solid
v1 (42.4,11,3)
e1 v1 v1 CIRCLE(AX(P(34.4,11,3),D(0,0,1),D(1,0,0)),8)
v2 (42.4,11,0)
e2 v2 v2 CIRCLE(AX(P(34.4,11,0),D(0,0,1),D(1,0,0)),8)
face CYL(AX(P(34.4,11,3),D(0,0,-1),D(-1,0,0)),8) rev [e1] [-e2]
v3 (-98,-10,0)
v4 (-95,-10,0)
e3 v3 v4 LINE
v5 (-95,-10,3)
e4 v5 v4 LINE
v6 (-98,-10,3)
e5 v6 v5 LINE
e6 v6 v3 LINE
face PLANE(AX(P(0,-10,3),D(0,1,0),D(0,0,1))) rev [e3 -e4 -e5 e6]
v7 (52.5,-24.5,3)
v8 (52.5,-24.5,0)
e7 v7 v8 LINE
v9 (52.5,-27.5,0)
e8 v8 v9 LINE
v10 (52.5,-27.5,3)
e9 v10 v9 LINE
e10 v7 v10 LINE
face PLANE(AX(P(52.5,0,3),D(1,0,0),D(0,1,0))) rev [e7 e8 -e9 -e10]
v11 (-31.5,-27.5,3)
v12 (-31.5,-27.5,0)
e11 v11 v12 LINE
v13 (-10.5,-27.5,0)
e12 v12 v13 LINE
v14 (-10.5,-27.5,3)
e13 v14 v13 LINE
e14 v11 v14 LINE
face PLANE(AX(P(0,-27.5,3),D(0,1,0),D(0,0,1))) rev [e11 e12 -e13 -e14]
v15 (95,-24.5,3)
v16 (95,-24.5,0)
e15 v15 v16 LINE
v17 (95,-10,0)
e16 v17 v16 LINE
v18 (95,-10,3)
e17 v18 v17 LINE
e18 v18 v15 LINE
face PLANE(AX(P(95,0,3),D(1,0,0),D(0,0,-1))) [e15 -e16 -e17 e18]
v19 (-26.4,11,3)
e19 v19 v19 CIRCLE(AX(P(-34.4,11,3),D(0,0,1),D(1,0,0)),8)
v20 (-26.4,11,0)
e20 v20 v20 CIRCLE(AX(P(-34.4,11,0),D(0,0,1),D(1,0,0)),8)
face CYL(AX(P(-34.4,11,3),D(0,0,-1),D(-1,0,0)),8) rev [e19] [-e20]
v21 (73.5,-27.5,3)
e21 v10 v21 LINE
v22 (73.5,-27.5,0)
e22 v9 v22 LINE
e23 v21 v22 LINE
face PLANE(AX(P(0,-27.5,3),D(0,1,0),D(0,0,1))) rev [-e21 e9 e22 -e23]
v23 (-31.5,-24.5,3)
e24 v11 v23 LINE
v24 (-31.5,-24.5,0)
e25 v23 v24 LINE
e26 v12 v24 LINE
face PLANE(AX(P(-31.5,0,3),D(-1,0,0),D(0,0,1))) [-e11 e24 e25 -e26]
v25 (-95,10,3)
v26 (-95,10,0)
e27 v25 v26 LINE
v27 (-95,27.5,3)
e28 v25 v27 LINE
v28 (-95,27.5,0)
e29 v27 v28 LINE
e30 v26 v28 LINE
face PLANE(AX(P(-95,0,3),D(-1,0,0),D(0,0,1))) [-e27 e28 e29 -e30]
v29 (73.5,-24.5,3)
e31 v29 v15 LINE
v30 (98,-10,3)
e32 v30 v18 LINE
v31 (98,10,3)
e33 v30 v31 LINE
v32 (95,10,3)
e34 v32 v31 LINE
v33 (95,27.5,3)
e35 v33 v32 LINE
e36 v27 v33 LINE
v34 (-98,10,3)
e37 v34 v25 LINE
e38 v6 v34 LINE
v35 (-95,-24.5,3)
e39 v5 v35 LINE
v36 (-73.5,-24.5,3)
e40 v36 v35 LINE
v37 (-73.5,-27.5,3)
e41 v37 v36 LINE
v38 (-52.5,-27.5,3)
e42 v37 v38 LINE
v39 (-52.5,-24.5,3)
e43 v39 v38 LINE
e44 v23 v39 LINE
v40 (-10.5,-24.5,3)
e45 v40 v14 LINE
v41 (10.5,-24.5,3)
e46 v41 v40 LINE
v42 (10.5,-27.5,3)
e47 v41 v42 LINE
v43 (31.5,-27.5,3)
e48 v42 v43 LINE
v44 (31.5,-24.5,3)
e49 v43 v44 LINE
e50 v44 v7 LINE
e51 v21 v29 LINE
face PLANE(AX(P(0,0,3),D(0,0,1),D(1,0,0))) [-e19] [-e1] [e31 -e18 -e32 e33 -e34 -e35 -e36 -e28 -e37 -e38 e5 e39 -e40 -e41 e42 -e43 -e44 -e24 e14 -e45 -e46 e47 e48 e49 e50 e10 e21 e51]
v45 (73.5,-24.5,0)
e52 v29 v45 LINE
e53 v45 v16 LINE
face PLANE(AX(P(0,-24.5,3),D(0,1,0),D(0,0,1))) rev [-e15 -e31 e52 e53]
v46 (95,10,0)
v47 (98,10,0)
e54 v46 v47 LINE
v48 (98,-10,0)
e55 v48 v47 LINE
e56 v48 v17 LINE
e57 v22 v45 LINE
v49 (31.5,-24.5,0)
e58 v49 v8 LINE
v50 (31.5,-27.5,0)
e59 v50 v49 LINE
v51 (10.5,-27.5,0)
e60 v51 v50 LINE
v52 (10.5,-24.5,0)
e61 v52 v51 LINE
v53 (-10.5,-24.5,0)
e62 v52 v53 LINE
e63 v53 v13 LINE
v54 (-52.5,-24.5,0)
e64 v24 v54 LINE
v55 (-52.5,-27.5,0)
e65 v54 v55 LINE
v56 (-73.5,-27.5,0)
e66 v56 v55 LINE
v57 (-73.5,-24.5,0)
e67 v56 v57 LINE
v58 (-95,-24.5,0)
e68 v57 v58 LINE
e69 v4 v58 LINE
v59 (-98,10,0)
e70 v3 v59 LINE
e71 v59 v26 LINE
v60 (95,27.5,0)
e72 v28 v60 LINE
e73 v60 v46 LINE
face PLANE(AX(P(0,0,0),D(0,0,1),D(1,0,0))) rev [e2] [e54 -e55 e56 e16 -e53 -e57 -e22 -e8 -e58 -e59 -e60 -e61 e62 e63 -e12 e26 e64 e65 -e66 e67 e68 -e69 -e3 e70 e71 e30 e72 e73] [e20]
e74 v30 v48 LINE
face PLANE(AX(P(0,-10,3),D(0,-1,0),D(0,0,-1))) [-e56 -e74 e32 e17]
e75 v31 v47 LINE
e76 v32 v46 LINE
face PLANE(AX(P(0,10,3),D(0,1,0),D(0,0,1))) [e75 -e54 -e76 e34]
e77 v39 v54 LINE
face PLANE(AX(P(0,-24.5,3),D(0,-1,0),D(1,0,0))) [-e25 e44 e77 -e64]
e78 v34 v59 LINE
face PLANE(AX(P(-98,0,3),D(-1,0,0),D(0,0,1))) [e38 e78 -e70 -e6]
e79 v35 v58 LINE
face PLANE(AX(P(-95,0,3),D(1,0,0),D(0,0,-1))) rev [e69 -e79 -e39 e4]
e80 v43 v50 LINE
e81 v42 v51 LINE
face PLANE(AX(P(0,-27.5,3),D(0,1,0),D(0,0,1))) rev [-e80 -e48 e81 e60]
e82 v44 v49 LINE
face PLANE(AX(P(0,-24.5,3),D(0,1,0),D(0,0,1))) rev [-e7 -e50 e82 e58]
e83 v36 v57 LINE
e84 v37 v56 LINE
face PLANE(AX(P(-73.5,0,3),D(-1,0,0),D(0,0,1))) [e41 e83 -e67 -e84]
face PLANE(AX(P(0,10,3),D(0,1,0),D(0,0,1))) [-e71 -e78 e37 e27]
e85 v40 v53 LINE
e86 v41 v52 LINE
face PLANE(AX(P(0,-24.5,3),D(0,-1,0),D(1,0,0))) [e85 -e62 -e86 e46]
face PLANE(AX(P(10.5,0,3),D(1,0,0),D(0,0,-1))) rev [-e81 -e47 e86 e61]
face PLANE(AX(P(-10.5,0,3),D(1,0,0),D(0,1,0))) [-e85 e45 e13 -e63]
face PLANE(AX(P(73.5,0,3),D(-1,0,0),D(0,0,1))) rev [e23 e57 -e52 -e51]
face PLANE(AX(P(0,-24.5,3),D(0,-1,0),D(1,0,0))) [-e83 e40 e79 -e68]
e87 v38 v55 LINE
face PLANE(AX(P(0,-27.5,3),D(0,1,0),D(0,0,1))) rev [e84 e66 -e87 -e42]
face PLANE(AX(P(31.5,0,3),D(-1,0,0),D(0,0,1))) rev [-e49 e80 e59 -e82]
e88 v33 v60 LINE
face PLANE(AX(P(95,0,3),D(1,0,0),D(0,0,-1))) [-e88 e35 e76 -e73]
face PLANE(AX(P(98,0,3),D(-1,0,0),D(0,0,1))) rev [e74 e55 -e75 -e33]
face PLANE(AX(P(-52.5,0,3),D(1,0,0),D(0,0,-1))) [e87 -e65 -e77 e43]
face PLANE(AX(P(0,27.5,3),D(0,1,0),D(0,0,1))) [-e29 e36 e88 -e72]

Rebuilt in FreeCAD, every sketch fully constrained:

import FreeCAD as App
import Part
import Sketcher
Q = App.Units.Quantity


def add_polygon(sketch, points):
    """Adds a closed chain of lines whose ends are joined by coincident constraints."""
    first, n = sketch.GeometryCount, len(points)
    for a, b in zip(points, points[1:] + points[:1]):
        sketch.addGeometry(Part.LineSegment(App.Vector(*a, 0), App.Vector(*b, 0)), False)
    for i in range(n):
        sketch.addConstraint(Sketcher.Constraint("Coincident", first + i, 2, first + (i + 1) % n, 1))

doc = App.newDocument("Part")
body = doc.addObject("PartDesign::Body", "Body")

sketch1 = doc.addObject("Sketcher::SketchObject", "Sketch")
body.addObject(sketch1)
sketch1.AttachmentSupport = (doc.XY_Plane, [""])
sketch1.MapMode = "FlatFace"
add_polygon(sketch1, [(-10.5, -24.5), (10.5, -24.5), (10.5, -27.5), (31.5, -27.5), (31.5, -24.5), (52.5, -24.5), (52.5, -27.5), (73.5, -27.5), (73.5, -24.5), (95, -24.5), (95, -10), (98, -10), (98, 10), (95, 10), (95, 27.5), (-95, 27.5), (-95, 10), (-98, 10), (-98, -10), (-95, -10), (-95, -24.5), (-73.5, -24.5), (-73.5, -27.5), (-52.5, -27.5), (-52.5, -24.5), (-31.5, -24.5), (-31.5, -27.5), (-10.5, -27.5)])
sketch1.addGeometry(Part.Circle(App.Vector(-34.4, 11, 0), App.Vector(0, 0, 1), 8), False)
sketch1.addGeometry(Part.Circle(App.Vector(34.4, 11, 0), App.Vector(0, 0, 1), 8), False)
sketch1.addConstraint(Sketcher.Constraint("Horizontal", 0))
sketch1.addConstraint(Sketcher.Constraint("Vertical", 1))
sketch1.addConstraint(Sketcher.Constraint("Horizontal", 2))
sketch1.addConstraint(Sketcher.Constraint("Vertical", 3))
sketch1.addConstraint(Sketcher.Constraint("Horizontal", 4))
sketch1.addConstraint(Sketcher.Constraint("Vertical", 5))
sketch1.addConstraint(Sketcher.Constraint("Horizontal", 6))
sketch1.addConstraint(Sketcher.Constraint("Vertical", 7))
sketch1.addConstraint(Sketcher.Constraint("Horizontal", 8))
sketch1.addConstraint(Sketcher.Constraint("Vertical", 9))
sketch1.addConstraint(Sketcher.Constraint("Horizontal", 10))
sketch1.addConstraint(Sketcher.Constraint("Vertical", 11))
sketch1.addConstraint(Sketcher.Constraint("Horizontal", 12))
sketch1.addConstraint(Sketcher.Constraint("Vertical", 13))
sketch1.addConstraint(Sketcher.Constraint("Horizontal", 14))
sketch1.addConstraint(Sketcher.Constraint("Vertical", 15))
sketch1.addConstraint(Sketcher.Constraint("Horizontal", 16))
sketch1.addConstraint(Sketcher.Constraint("Vertical", 17))
sketch1.addConstraint(Sketcher.Constraint("Horizontal", 18))
sketch1.addConstraint(Sketcher.Constraint("Vertical", 19))
sketch1.addConstraint(Sketcher.Constraint("Horizontal", 20))
sketch1.addConstraint(Sketcher.Constraint("Vertical", 21))
sketch1.addConstraint(Sketcher.Constraint("Horizontal", 22))
sketch1.addConstraint(Sketcher.Constraint("Vertical", 23))
sketch1.addConstraint(Sketcher.Constraint("Horizontal", 24))
sketch1.addConstraint(Sketcher.Constraint("Vertical", 25))
sketch1.addConstraint(Sketcher.Constraint("Horizontal", 26))
sketch1.addConstraint(Sketcher.Constraint("Vertical", 27))
sketch1.addConstraint(Sketcher.Constraint("Equal", 28, 29))
sketch1.addConstraint(Sketcher.Constraint("Symmetric", 9, 2, 15, 2, -1, 1))
sketch1.addConstraint(Sketcher.Constraint("Symmetric", 11, 2, 17, 2, -1, 1))
sketch1.addConstraint(Sketcher.Constraint("Symmetric", 28, 3, 29, 3, -2))
sketch1.addConstraint(Sketcher.Constraint("Symmetric", 12, 2, 15, 2, -2))
sketch1.addConstraint(Sketcher.Constraint("Symmetric", 8, 2, 19, 2, -2))
sketch1.addConstraint(Sketcher.Constraint("Symmetric", 6, 2, 21, 2, -2))
sketch1.addConstraint(Sketcher.Constraint("Symmetric", 4, 2, 23, 2, -2))
sketch1.addConstraint(Sketcher.Constraint("Symmetric", 2, 2, 25, 2, -2))
sketch1.addConstraint(Sketcher.Constraint("Horizontal", 0, 2, 3, 2))
sketch1.addConstraint(Sketcher.Constraint("Horizontal", 2, 2, 5, 2))
sketch1.addConstraint(Sketcher.Constraint("Horizontal", 4, 2, 7, 2))
sketch1.addConstraint(Sketcher.Constraint("Equal", 0, 2))
sketch1.addConstraint(Sketcher.Constraint("Equal", 2, 4))
sketch1.addConstraint(Sketcher.Constraint("Equal", 4, 6))
sketch1.addConstraint(Sketcher.Constraint("Equal", 24, 26))
sketch1.addConstraint(Sketcher.Constraint("Equal", 18, 1))
sketch1.addConstraint(Sketcher.Constraint("Diameter", 28, Q("16 mm")))
sketch1.addConstraint(Sketcher.Constraint("DistanceX", 0, 1, 0, 2, Q("21 mm")))
sketch1.addConstraint(Sketcher.Constraint("DistanceX", 10, 1, 10, 2, Q("3 mm")))
sketch1.addConstraint(Sketcher.Constraint("DistanceX", 14, 2, 14, 1, Q("190 mm")))
sketch1.addConstraint(Sketcher.Constraint("DistanceY", 11, 1, 11, 2, Q("20 mm")))
sketch1.addConstraint(Sketcher.Constraint("DistanceY", 9, 1, 9, 2, Q("14.5 mm")))
sketch1.addConstraint(Sketcher.Constraint("DistanceY", 13, 1, 13, 2, Q("17.5 mm")))
sketch1.addConstraint(Sketcher.Constraint("DistanceY", -1, 1, 28, 3, Q("11 mm")))
sketch1.addConstraint(Sketcher.Constraint("DistanceX", 28, 3, -1, 1, Q("34.4 mm")))
pad1 = doc.addObject("PartDesign::Pad", "Pad")
body.addObject(pad1)
pad1.Profile = sketch1
pad1.Length = 3

doc.recompute()
